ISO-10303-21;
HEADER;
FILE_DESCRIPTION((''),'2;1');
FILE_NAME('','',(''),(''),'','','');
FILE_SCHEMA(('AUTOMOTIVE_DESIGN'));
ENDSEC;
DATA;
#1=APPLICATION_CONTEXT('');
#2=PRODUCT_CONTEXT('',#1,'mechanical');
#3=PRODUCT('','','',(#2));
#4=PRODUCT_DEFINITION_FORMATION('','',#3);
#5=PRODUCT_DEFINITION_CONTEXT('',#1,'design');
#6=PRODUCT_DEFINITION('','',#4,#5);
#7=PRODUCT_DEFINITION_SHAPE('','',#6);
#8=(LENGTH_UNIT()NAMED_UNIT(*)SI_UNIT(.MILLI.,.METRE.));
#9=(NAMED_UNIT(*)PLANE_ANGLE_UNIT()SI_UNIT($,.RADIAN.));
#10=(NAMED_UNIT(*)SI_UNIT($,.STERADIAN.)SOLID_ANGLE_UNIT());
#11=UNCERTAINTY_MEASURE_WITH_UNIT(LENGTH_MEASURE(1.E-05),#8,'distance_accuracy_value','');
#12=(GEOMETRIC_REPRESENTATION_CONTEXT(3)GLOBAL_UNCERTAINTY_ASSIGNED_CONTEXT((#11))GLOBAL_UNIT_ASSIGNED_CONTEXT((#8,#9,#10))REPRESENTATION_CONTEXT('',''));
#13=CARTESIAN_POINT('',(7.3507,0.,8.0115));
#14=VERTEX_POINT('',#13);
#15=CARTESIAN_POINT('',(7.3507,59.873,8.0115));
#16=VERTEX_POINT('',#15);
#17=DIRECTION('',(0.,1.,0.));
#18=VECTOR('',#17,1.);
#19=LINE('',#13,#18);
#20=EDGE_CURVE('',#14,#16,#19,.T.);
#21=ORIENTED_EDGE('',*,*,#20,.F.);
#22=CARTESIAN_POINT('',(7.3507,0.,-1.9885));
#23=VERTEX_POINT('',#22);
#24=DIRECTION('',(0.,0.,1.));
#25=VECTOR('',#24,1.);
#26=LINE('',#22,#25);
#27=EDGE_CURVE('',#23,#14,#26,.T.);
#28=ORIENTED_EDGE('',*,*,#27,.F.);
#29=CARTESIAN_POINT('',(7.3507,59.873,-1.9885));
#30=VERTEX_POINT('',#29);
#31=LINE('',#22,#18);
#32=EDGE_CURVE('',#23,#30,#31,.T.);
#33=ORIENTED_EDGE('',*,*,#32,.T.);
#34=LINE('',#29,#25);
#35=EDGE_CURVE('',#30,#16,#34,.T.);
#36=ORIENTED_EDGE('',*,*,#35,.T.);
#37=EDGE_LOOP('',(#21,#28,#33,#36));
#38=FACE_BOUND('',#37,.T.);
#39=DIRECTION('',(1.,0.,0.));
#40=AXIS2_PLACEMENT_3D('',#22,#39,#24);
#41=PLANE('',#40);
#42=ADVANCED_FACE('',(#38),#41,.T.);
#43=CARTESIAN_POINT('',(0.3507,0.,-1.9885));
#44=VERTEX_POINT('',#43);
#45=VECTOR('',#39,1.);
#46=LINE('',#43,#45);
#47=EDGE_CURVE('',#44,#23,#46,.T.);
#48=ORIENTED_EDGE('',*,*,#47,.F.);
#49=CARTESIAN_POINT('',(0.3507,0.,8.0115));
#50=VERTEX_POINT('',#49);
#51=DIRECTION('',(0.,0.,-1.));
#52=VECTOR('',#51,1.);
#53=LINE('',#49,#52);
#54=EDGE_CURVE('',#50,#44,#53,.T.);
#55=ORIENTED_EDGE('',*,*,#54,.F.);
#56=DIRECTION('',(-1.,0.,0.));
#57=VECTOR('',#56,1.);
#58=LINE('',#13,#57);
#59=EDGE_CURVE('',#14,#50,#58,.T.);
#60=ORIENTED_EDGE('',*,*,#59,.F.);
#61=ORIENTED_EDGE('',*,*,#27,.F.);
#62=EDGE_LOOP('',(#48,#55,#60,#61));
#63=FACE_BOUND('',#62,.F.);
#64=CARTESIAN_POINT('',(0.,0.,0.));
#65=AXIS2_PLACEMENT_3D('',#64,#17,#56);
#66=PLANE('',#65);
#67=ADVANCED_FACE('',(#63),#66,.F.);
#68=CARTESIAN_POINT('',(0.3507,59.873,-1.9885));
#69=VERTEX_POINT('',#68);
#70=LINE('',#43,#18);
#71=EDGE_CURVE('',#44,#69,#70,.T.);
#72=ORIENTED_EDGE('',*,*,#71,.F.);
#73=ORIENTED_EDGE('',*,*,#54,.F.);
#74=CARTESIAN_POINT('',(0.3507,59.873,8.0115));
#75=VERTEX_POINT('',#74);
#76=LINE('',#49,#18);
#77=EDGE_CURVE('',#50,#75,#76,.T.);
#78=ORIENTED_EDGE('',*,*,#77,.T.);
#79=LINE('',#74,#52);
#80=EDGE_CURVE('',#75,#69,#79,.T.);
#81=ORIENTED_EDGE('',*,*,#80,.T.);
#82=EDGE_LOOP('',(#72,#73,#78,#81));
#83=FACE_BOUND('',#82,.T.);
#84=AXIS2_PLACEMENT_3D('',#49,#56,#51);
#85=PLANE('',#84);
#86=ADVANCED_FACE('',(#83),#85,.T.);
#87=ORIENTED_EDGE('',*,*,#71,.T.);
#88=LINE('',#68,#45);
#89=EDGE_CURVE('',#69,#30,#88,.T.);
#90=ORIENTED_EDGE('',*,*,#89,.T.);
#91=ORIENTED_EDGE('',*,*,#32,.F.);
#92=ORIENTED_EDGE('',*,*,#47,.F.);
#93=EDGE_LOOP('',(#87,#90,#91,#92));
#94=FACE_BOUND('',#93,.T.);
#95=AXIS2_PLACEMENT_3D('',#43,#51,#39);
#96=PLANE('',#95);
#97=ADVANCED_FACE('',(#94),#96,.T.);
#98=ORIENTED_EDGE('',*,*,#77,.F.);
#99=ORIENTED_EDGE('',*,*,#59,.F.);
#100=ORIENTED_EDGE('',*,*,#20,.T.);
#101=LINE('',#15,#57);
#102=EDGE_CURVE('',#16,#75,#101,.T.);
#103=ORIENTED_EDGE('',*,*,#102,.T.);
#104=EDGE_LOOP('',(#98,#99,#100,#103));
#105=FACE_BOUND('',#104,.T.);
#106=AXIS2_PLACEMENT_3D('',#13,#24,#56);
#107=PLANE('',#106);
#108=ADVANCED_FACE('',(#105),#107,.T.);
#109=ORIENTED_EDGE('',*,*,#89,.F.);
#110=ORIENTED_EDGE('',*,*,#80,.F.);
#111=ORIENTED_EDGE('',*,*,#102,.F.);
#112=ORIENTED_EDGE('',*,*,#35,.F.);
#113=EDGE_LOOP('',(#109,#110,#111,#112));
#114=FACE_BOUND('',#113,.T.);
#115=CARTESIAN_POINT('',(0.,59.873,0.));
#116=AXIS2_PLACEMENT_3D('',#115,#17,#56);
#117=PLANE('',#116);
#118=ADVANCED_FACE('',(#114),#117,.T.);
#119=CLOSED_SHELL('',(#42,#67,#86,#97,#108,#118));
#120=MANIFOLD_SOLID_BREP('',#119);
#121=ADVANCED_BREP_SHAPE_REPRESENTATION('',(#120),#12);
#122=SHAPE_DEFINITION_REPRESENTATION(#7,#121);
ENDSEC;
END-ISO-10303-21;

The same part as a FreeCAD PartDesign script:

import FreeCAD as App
import Part
import Sketcher
from FreeCAD import Vector

doc = App.newDocument("Part")
body = doc.addObject("PartDesign::Body", "Body")

sketch1 = body.newObject("Sketcher::SketchObject", "Sketch")
sketch1.AttachmentSupport = (doc.getObject("XZ_Plane"), [""])
sketch1.MapMode = "FlatFace"
sketch1.addGeometry([
    Part.LineSegment(Vector(7, -2, 0), Vector(0, -2, 0)),
    Part.LineSegment(Vector(0, -2, 0), Vector(0, 8, 0)),
    Part.LineSegment(Vector(0, 8, 0), Vector(7, 8, 0)),
    Part.LineSegment(Vector(7, 8, 0), Vector(7, -2, 0)),
], False)
sketch1.addConstraint([
    Sketcher.Constraint("Coincident", 0, 2, 1, 1),
    Sketcher.Constraint("Coincident", 1, 2, 2, 1),
    Sketcher.Constraint("Coincident", 2, 2, 3, 1),
    Sketcher.Constraint("Coincident", 3, 2, 0, 1),
    Sketcher.Constraint("Horizontal", 0),
    Sketcher.Constraint("Vertical", 1),
    Sketcher.Constraint("Horizontal", 2),
    Sketcher.Constraint("Vertical", 3),
    Sketcher.Constraint("DistanceX", 0, 2, 0, 1, 7.0),
    Sketcher.Constraint("DistanceY", 1, 1, 1, 2, 10.0),
    Sketcher.Constraint("DistanceX", -1, 1, 0, 2, 0.3507),
    Sketcher.Constraint("DistanceY", 0, 2, -1, 1, 1.9885),
])
pad1 = body.newObject("PartDesign::Pad", "Pad")
pad1.Profile = sketch1
pad1.Length = 59.873
pad1.Reversed = True

doc.recompute()
